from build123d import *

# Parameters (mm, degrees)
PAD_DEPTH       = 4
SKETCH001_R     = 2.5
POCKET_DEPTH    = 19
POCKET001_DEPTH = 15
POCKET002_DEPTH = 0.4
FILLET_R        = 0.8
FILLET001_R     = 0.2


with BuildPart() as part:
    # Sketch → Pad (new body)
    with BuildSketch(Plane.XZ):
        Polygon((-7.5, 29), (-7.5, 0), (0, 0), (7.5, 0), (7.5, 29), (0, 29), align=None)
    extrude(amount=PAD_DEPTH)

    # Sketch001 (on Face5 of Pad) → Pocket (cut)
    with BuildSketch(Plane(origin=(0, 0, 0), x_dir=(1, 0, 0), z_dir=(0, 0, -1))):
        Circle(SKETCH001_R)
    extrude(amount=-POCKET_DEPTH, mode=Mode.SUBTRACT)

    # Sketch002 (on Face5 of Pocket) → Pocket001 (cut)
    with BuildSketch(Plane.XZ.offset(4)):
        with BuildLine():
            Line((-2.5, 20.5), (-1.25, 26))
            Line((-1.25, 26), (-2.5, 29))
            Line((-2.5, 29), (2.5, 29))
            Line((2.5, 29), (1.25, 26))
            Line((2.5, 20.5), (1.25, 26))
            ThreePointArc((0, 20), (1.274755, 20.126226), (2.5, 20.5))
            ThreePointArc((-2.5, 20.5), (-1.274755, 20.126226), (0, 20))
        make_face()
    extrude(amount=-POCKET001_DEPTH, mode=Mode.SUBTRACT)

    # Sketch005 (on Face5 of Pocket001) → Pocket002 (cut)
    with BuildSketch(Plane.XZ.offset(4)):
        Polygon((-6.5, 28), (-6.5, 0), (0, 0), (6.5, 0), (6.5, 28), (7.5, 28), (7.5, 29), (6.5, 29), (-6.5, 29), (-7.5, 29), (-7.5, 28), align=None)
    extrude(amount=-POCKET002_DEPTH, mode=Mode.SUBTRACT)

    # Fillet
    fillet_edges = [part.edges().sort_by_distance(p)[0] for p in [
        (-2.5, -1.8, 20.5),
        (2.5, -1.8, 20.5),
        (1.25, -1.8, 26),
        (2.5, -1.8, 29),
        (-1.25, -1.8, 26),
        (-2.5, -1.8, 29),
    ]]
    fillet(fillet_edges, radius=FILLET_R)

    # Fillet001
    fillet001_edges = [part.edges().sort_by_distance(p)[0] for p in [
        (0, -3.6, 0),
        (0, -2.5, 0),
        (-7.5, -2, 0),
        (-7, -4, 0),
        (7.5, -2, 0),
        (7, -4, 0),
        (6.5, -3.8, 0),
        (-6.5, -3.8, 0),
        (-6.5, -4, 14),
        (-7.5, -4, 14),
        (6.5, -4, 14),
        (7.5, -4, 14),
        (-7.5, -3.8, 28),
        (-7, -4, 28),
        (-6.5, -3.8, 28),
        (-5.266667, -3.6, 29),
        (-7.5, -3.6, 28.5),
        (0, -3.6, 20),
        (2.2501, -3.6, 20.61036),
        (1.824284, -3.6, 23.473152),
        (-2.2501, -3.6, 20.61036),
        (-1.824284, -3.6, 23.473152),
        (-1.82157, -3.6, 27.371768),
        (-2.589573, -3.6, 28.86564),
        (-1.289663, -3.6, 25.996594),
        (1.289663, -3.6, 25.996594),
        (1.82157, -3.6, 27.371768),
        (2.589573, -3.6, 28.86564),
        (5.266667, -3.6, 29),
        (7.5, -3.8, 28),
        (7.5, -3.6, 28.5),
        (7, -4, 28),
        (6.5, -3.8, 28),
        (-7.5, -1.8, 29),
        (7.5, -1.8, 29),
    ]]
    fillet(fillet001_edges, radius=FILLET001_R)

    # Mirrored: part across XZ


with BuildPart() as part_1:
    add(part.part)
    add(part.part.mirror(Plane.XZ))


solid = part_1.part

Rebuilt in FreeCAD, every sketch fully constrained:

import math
import FreeCAD as App
import Part
import Sketcher
from FreeCAD import Vector


def edges_at(feature, points):
    """Names of the edges that pass closest to the given points."""
    edges = feature.Shape.Edges
    near = lambda p: min(range(len(edges)), key=lambda i: edges[i].distToShape(Part.Vertex(*p))[0])
    return sorted({f"Edge{near(p) + 1}" for p in points})


def add_polygon(sketch, points):
    """Adds a closed chain of lines whose ends are joined by coincident constraints."""
    first, n = sketch.GeometryCount, len(points)
    for a, b in zip(points, points[1:] + points[:1]):
        sketch.addGeometry(Part.LineSegment(App.Vector(*a, 0), App.Vector(*b, 0)), False)
    for i in range(n):
        sketch.addConstraint(Sketcher.Constraint("Coincident", first + i, 2, first + (i + 1) % n, 1))

doc = App.newDocument("Part")
body = doc.addObject("PartDesign::Body", "Body")

sketch1 = body.newObject("Sketcher::SketchObject", "Sketch")
sketch1.AttachmentSupport = (doc.getObject("XZ_Plane"), [""])
sketch1.MapMode = "FlatFace"
add_polygon(sketch1, [(-7.5, 29), (-7.5, 0), (7.5, 0), (7.5, 29)])
sketch1.addConstraint([
    Sketcher.Constraint("Vertical", 0),
    Sketcher.Constraint("Horizontal", 1),
    Sketcher.Constraint("Vertical", 2),
    Sketcher.Constraint("Horizontal", 3),
    Sketcher.Constraint("Symmetric", 0, 2, 1, 2, -1, 1),
    Sketcher.Constraint("DistanceX", 1, 1, 1, 2, 15.0),
    Sketcher.Constraint("DistanceY", 0, 2, 0, 1, 29.0),
])
pad1 = body.newObject("PartDesign::Pad", "Pad")
pad1.Profile = sketch1
pad1.Length = 4

sketch2 = body.newObject("Sketcher::SketchObject", "Sketch001")
sketch2.AttachmentSupport = (doc.getObject("XY_Plane"), [""])
sketch2.MapMode = "FlatFace"
sketch2.addGeometry(Part.Circle(Vector(0, 0, 0), Vector(0, 0, 1), 2.5), False)
sketch2.addConstraint([
    Sketcher.Constraint("Coincident", 0, 3, -1, 1),
    Sketcher.Constraint("Diameter", 0, 5.0),
])
pocket1 = body.newObject("PartDesign::Pocket", "Pocket")
pocket1.Profile = sketch2
pocket1.Length = 19
pocket1.Reversed = True

sketch3 = body.newObject("Sketcher::SketchObject", "Sketch002")
sketch3.AttachmentSupport = (doc.getObject("XZ_Plane"), [""])
sketch3.MapMode = "FlatFace"
sketch3.AttachmentOffset = App.Placement(Vector(0, 0, 4), App.Rotation())
sketch3.addGeometry([
    Part.LineSegment(Vector(-1.25, 26, 0), Vector(-2.5, 20.5, 0)),
    Part.ArcOfCircle(Part.Circle(Vector(0.000004, 26.500018, 0), Vector(0, 0, 1), 6.500018), math.radians(-112.619833), math.radians(-90.000032)),
    Part.ArcOfCircle(Part.Circle(Vector(-0.000004, 26.500018, 0), Vector(0, 0, 1), 6.500018), math.radians(-89.999968), math.radians(-67.380167)),
    Part.LineSegment(Vector(2.5, 20.5, 0), Vector(1.25, 26, 0)),
    Part.LineSegment(Vector(1.25, 26, 0), Vector(2.5, 29, 0)),
    Part.LineSegment(Vector(2.5, 29, 0), Vector(-2.5, 29, 0)),
    Part.LineSegment(Vector(-2.5, 29, 0), Vector(-1.25, 26, 0)),
], False)
sketch3.addConstraint([
    Sketcher.Constraint("Coincident", 0, 2, 1, 1),
    Sketcher.Constraint("Tangent", 1, 2, 2, 1),
    Sketcher.Constraint("Coincident", 2, 2, 3, 1),
    Sketcher.Constraint("Coincident", 3, 2, 4, 1),
    Sketcher.Constraint("Coincident", 4, 2, 5, 1),
    Sketcher.Constraint("Coincident", 5, 2, 6, 1),
    Sketcher.Constraint("Coincident", 6, 2, 0, 1),
    Sketcher.Constraint("Horizontal", 5),
    Sketcher.Constraint("Equal", 1, 2),
    Sketcher.Constraint("Symmetric", 0, 2, 2, 2, -2),
    Sketcher.Constraint("Symmetric", 3, 2, 6, 2, -2),
    Sketcher.Constraint("PointOnObject", 1, 2, -2),
    Sketcher.Constraint("Vertical", 2, 2, 4, 2),
    Sketcher.Constraint("Vertical", 0, 2, 5, 2),
    Sketcher.Constraint("DistanceX", 5, 2, 5, 1, 5.0),
    Sketcher.Constraint("DistanceY", -1, 1, 1, 2, 20.0),
    Sketcher.Constraint("DistanceY", -1, 1, 3, 2, 26.0),
    Sketcher.Constraint("DistanceY", -1, 1, 4, 2, 29.0),
    Sketcher.Constraint("DistanceY", -1, 1, 0, 2, 20.5),
    Sketcher.Constraint("DistanceX", 6, 2, 3, 2, 2.5),
])
pocket2 = body.newObject("PartDesign::Pocket", "Pocket001")
pocket2.Profile = sketch3
pocket2.Length = 15

sketch4 = body.newObject("Sketcher::SketchObject", "Sketch003")
sketch4.AttachmentSupport = (doc.getObject("XZ_Plane"), [""])
sketch4.MapMode = "FlatFace"
sketch4.AttachmentOffset = App.Placement(Vector(0, 0, 4), App.Rotation())
add_polygon(sketch4, [(-6.5, 28), (-6.5, 0), (6.5, 0), (6.5, 28), (7.5, 28), (7.5, 29), (-7.5, 29), (-7.5, 28)])
sketch4.addConstraint([
    Sketcher.Constraint("Vertical", 0),
    Sketcher.Constraint("Horizontal", 1),
    Sketcher.Constraint("Vertical", 2),
    Sketcher.Constraint("Horizontal", 3),
    Sketcher.Constraint("Vertical", 4),
    Sketcher.Constraint("Horizontal", 5),
    Sketcher.Constraint("Vertical", 6),
    Sketcher.Constraint("Horizontal", 7),
    Sketcher.Constraint("Symmetric", 0, 2, 1, 2, -1, 1),
    Sketcher.Constraint("Symmetric", 3, 2, 6, 2, -2),
    Sketcher.Constraint("Equal", 7, 4),
    Sketcher.Constraint("DistanceX", 1, 1, 1, 2, 13.0),
    Sketcher.Constraint("DistanceX", 3, 1, 3, 2, 1.0),
    Sketcher.Constraint("DistanceY", 0, 2, 0, 1, 28.0),
])
pocket3 = body.newObject("PartDesign::Pocket", "Pocket002")
pocket3.Profile = sketch4
pocket3.Length = 0.4
doc.recompute()

fillet = body.newObject("PartDesign::Fillet", "Fillet")
fillet.Base = (pocket3, edges_at(pocket3, [
    (-2.5, -1.8, 20.5),
    (2.5, -1.8, 20.5),
    (1.25, -1.8, 26),
    (2.5, -1.8, 29),
    (-1.25, -1.8, 26),
    (-2.5, -1.8, 29),
]))
fillet.Radius = 0.8
doc.recompute()

fillet2 = body.newObject("PartDesign::Fillet", "Fillet001")
fillet2.Base = (fillet, edges_at(fillet, [
    (0, -3.6, 0),
    (0, -2.5, 0),
    (-7.5, -2, 0),
    (-7, -4, 0),
    (7.5, -2, 0),
    (7, -4, 0),
    (6.5, -3.8, 0),
    (-6.5, -3.8, 0),
    (-6.5, -4, 14),
    (-7.5, -4, 14),
    (6.5, -4, 14),
    (7.5, -4, 14),
    (-7.5, -3.8, 28),
    (-7, -4, 28),
    (-6.5, -3.8, 28),
    (-5.267, -3.6, 29),
    (-7.5, -3.6, 28.5),
    (-0.899, -3.6, 20.062),
    (2.25, -3.6, 20.61),
    (1.824, -3.6, 23.473),
    (-2.25, -3.6, 20.61),
    (-1.824, -3.6, 23.473),
    (-1.822, -3.6, 27.372),
    (-2.59, -3.6, 28.866),
    (-1.29, -3.6, 25.997),
    (1.29, -3.6, 25.997),
    (1.822, -3.6, 27.372),
    (2.59, -3.6, 28.866),
    (5.267, -3.6, 29),
    (7.5, -3.8, 28),
    (7.5, -3.6, 28.5),
    (7, -4, 28),
    (6.5, -3.8, 28),
    (-7.5, -1.8, 29),
    (7.5, -1.8, 29),
]))
fillet2.Radius = 0.2
body2 = doc.addObject("PartDesign::Body", "Body001")
doc.recompute()

body2.BaseFeature = body
doc.recompute()

mirroring = doc.addObject("Part::Mirroring", "Mirroring")
mirroring.Source = body
mirroring.Base = Vector(0, 0, 0)
mirroring.Normal = Vector(0, -1, 0)
body3 = doc.addObject("PartDesign::Body", "Body002")
body3.BaseFeature = mirroring
boolean = body2.newObject("PartDesign::Boolean", "Boolean")
boolean.Type = "Fuse"
boolean.addObjects([body3])
doc.recompute()
mirroring.Visibility = False

doc.recompute()
